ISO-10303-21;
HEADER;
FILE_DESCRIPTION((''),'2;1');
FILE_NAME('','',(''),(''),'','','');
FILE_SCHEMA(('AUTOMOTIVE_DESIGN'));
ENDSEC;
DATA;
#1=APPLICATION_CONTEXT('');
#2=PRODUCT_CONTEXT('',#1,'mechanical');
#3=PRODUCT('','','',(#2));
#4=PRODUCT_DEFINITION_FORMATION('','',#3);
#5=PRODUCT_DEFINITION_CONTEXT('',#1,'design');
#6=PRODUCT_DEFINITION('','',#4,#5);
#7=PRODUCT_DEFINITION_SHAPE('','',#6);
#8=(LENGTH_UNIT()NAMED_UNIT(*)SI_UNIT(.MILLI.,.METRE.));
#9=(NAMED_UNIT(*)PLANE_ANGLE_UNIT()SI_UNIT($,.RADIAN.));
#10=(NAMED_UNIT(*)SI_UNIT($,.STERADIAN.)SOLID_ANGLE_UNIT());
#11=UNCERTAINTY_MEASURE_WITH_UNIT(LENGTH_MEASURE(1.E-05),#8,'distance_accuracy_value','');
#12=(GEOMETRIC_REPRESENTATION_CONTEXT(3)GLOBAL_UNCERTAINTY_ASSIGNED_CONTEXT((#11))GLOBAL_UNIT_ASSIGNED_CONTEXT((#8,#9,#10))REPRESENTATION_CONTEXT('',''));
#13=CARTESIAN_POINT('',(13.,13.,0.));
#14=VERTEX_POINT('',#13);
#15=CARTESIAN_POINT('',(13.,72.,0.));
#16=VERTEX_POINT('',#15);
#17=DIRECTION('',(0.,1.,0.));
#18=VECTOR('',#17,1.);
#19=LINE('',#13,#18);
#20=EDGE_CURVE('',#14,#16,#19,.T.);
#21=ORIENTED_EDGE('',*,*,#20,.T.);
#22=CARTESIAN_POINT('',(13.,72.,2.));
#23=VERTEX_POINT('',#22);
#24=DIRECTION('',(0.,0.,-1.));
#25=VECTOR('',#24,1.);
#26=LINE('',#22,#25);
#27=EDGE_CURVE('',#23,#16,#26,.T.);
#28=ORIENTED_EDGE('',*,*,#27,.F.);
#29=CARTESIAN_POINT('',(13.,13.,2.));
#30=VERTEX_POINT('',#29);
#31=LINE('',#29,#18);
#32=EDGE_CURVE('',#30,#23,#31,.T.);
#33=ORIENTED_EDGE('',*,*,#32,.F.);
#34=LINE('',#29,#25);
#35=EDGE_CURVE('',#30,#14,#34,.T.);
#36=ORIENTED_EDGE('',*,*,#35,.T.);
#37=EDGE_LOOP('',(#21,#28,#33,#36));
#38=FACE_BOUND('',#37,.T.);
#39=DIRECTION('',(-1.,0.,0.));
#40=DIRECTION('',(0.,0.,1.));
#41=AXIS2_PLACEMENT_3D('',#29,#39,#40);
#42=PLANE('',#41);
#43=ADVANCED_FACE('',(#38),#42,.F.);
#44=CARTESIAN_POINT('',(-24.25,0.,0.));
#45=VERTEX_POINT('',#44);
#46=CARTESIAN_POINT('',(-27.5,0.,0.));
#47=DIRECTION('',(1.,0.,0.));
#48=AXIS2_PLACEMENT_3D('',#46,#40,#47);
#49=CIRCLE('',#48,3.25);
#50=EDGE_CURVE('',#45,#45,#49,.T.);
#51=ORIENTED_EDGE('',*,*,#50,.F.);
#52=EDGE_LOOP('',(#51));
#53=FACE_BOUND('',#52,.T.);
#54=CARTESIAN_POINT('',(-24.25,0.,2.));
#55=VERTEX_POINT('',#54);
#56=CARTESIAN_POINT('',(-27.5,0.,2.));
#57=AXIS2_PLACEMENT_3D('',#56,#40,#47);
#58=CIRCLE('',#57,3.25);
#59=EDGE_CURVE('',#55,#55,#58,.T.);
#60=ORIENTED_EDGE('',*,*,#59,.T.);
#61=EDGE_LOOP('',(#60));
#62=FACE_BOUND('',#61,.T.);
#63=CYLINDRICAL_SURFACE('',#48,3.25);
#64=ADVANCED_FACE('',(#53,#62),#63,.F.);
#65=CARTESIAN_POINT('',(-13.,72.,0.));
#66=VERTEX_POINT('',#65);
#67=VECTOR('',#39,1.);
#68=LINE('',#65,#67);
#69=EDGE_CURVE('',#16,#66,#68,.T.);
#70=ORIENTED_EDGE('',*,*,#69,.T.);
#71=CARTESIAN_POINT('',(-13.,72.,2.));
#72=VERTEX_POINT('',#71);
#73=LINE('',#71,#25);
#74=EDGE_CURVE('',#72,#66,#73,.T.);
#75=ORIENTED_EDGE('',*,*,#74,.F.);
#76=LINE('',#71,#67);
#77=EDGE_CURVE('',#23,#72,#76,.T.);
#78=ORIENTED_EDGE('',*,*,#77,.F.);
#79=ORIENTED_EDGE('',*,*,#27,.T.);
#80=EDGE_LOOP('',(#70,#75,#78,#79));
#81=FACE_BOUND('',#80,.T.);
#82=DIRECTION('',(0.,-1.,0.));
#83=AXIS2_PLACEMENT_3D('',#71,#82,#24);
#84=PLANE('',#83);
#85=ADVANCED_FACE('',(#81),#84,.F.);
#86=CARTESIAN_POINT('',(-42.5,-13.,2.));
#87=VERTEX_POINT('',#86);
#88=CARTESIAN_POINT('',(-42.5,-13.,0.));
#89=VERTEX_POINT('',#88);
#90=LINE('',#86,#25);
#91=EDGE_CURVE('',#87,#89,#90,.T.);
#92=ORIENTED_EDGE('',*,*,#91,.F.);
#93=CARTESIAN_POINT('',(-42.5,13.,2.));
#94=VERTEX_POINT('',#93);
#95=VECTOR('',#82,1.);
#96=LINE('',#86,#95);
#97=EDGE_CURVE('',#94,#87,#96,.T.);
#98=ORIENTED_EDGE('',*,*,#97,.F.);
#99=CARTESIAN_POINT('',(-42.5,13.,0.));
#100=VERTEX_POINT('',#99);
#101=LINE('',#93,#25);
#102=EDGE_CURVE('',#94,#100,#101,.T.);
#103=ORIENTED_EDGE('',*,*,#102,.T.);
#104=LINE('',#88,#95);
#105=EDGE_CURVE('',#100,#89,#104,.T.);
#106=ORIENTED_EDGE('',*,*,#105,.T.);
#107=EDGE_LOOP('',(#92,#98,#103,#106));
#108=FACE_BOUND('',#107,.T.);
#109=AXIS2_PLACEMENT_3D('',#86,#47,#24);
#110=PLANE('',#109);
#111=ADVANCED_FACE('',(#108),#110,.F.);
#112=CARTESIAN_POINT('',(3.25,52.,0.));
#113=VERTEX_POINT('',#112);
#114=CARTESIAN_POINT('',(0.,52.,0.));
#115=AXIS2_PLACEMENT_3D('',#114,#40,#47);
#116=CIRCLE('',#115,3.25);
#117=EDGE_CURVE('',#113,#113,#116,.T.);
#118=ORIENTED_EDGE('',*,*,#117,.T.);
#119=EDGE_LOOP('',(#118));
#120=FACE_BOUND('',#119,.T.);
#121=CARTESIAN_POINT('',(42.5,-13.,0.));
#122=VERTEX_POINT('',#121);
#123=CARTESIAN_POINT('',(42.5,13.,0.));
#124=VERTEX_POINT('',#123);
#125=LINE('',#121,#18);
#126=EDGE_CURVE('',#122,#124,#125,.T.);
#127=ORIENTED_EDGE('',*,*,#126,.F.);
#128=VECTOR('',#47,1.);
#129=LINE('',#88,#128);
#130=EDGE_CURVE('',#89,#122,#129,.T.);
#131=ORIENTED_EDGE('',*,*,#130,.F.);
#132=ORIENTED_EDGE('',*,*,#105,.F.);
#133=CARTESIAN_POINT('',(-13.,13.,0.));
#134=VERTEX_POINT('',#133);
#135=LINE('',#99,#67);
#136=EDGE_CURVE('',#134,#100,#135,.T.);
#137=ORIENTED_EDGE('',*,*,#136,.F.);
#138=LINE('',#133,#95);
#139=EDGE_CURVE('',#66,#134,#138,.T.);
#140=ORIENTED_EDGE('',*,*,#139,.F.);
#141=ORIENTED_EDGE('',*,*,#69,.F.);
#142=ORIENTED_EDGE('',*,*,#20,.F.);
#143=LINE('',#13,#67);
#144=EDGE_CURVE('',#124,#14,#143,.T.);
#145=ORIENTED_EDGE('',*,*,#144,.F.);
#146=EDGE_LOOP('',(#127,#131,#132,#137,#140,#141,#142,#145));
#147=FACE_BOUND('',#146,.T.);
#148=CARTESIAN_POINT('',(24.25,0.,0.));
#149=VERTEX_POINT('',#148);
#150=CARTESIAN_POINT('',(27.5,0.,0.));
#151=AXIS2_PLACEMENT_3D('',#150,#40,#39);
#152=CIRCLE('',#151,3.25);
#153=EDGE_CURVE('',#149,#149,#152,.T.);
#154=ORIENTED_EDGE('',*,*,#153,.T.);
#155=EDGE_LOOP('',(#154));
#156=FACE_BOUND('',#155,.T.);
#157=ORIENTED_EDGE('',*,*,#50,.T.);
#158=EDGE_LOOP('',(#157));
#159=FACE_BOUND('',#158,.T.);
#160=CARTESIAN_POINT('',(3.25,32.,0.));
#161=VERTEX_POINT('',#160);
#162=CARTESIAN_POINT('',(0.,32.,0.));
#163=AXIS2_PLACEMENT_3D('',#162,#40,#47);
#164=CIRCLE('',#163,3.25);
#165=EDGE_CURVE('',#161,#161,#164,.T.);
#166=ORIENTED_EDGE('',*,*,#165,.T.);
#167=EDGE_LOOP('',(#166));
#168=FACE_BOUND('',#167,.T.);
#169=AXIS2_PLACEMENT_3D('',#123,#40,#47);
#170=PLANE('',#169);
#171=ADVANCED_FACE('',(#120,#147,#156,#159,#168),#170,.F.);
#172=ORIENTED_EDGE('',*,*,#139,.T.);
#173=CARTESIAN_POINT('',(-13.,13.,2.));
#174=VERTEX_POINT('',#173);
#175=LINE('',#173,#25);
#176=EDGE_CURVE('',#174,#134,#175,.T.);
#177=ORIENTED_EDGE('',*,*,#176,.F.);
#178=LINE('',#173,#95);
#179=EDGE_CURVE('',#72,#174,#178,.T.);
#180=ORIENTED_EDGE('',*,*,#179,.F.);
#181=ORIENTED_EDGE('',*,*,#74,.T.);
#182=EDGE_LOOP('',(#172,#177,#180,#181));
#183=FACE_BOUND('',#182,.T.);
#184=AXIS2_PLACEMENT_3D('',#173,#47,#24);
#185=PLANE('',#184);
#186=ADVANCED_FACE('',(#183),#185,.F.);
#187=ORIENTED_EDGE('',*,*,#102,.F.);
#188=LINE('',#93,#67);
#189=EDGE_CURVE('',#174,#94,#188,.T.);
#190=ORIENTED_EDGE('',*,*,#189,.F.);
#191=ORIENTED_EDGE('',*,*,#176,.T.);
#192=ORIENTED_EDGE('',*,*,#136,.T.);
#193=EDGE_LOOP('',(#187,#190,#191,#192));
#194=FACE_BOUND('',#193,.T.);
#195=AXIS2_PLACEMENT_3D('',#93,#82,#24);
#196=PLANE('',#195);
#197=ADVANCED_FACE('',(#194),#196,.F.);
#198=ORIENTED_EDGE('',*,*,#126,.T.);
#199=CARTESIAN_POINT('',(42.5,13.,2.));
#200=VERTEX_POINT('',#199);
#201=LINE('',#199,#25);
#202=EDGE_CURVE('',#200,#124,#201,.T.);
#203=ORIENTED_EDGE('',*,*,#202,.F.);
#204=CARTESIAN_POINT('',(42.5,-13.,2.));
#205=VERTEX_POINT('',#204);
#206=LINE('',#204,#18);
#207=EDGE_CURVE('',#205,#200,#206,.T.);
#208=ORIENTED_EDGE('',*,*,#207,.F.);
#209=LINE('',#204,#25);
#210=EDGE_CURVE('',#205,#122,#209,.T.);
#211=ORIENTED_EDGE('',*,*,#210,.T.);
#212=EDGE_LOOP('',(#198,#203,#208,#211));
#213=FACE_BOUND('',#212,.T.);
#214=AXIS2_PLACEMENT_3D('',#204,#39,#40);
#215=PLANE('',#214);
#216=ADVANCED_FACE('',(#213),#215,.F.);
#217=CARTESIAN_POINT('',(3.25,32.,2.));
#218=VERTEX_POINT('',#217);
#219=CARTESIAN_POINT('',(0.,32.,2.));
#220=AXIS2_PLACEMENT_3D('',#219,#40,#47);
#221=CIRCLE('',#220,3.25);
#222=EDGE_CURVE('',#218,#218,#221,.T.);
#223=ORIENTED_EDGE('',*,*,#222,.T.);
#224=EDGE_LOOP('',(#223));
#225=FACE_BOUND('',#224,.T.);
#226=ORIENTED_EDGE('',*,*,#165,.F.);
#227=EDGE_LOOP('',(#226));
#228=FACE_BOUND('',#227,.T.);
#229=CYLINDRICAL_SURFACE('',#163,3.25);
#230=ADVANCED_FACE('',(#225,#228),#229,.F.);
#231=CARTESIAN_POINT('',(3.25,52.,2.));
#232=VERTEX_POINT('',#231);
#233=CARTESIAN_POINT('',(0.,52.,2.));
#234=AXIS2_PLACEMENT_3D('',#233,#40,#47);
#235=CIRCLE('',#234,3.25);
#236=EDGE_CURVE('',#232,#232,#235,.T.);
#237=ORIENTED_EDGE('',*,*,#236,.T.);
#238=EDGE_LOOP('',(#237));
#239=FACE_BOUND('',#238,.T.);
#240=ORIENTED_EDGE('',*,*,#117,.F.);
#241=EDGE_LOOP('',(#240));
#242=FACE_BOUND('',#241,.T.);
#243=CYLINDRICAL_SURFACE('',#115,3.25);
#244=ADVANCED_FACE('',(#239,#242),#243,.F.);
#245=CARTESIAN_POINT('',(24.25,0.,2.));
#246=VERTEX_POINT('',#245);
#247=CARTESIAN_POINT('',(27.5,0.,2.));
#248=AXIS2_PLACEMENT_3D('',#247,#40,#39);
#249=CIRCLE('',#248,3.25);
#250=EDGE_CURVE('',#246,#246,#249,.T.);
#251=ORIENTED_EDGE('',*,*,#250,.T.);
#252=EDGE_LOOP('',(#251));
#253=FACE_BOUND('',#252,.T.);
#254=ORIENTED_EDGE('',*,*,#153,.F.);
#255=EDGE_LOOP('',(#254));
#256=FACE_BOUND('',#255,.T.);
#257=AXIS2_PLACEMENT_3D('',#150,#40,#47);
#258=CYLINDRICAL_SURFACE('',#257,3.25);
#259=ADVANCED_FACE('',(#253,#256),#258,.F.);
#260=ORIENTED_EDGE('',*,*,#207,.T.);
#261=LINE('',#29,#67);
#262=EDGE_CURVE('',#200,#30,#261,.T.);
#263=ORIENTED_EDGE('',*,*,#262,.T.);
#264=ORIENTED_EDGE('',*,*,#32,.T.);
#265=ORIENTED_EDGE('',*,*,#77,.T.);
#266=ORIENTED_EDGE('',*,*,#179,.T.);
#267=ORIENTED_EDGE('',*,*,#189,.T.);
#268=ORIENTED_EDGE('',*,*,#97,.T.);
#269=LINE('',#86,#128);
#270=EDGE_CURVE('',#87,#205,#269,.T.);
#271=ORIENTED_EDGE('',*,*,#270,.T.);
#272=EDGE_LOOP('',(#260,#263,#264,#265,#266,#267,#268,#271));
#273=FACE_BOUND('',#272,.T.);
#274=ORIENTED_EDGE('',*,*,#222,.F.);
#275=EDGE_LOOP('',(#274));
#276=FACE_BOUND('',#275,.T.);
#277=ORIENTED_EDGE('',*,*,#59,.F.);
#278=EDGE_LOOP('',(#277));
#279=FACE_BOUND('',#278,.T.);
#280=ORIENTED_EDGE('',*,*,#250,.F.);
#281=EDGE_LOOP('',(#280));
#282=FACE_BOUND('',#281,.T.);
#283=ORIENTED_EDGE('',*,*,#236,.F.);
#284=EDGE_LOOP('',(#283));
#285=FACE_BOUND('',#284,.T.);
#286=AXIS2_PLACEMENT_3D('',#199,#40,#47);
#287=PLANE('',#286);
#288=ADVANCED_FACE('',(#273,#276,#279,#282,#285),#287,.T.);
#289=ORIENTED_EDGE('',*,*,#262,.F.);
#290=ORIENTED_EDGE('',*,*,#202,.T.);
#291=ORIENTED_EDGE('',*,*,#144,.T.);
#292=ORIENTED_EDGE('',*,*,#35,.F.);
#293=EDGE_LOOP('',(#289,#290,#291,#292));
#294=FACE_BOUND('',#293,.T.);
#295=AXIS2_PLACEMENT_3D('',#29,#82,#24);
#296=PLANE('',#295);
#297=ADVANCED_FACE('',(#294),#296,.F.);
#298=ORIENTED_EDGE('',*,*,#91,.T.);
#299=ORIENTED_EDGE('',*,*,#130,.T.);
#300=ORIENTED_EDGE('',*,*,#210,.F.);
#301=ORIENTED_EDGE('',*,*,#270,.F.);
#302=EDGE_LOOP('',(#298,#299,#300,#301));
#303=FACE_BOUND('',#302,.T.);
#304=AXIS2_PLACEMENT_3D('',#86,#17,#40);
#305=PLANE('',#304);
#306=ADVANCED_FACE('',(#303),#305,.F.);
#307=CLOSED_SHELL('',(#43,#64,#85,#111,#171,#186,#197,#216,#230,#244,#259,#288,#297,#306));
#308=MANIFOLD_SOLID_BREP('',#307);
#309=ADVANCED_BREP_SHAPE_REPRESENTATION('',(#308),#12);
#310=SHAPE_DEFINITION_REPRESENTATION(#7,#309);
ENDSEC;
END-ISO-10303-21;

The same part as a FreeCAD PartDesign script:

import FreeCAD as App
import Part
import Sketcher
Q = App.Units.Quantity


def add_polygon(sketch, points):
    """Adds a closed chain of lines whose ends are joined by coincident constraints."""
    first, n = sketch.GeometryCount, len(points)
    for a, b in zip(points, points[1:] + points[:1]):
        sketch.addGeometry(Part.LineSegment(App.Vector(*a, 0), App.Vector(*b, 0)), False)
    for i in range(n):
        sketch.addConstraint(Sketcher.Constraint("Coincident", first + i, 2, first + (i + 1) % n, 1))

doc = App.newDocument("Part")
body = doc.addObject("PartDesign::Body", "Body")

# Sketch on XY plane
sketch1 = body.newObject("Sketcher::SketchObject", "Sketch")
sketch1.AttachmentSupport = (doc.getObject("XY_Plane"), [""])
sketch1.MapMode = "FlatFace"
add_polygon(sketch1, [(-42.5, -13), (42.5, -13), (42.5, 13), (13, 13), (13, 72), (-13, 72), (-13, 13), (-42.5, 13)])  # lines 0-7
sketch1.addConstraint([
    Sketcher.Constraint("Horizontal", 0),
    Sketcher.Constraint("Vertical", 1),
    Sketcher.Constraint("Horizontal", 2),
    Sketcher.Constraint("Vertical", 3),
    Sketcher.Constraint("Horizontal", 4),
    Sketcher.Constraint("Vertical", 5),
    Sketcher.Constraint("Horizontal", 6),
    Sketcher.Constraint("Vertical", 7),
    Sketcher.Constraint("Symmetric", 0, 2, 6, 2, -1, 1),
    Sketcher.Constraint("Symmetric", 2, 2, 5, 2, -2),
    Sketcher.Constraint("Equal", 4, 1),
    Sketcher.Constraint("DistanceX", 0, 1, 0, 2, Q("85 mm")),
    Sketcher.Constraint("DistanceX", 4, 2, 4, 1, Q("26 mm")),
    Sketcher.Constraint("DistanceY", 3, 1, 3, 2, Q("59 mm")),
])
pad1 = body.newObject("PartDesign::Pad", "Pad")
pad1.Profile = sketch1
pad1.Length = 2

# Sketch on XY plane
sketch2 = body.newObject("Sketcher::SketchObject", "Sketch001")
sketch2.AttachmentSupport = (doc.getObject("XY_Plane"), [""])
sketch2.MapMode = "FlatFace"
sketch2.AttachmentOffset = App.Placement(App.Vector(0, 0, 2), App.Rotation())
sketch2.addGeometry([
    Part.Circle(App.Vector(0, 52, 0), App.Vector(0, 0, 1), 3.25),
    Part.Circle(App.Vector(0, 32, 0), App.Vector(0, 0, 1), 3.25),
    Part.Circle(App.Vector(-27.5, 0, 0), App.Vector(0, 0, 1), 3.25),
    Part.Circle(App.Vector(27.5, 0, 0), App.Vector(0, 0, 1), 3.25),
], False)
sketch2.addConstraint([
    Sketcher.Constraint("Equal", 0, 1),
    Sketcher.Constraint("Equal", 1, 2),
    Sketcher.Constraint("Equal", 2, 3),
    Sketcher.Constraint("Symmetric", 2, 3, 3, 3, -1, 1),
    Sketcher.Constraint("PointOnObject", 0, 3, -2),
    Sketcher.Constraint("PointOnObject", 1, 3, -2),
    Sketcher.Constraint("PointOnObject", 2, 3, -1),
    Sketcher.Constraint("Diameter", 0, Q("6.5 mm")),
    Sketcher.Constraint("DistanceY", -1, 1, 0, 3, Q("52 mm")),
    Sketcher.Constraint("DistanceY", -1, 1, 1, 3, Q("32 mm")),
    Sketcher.Constraint("DistanceX", 2, 3, 3, 3, Q("55 mm")),
])
pocket1 = body.newObject("PartDesign::Pocket", "Pocket")
pocket1.Profile = sketch2
pocket1.Type = "ThroughAll"

doc.recompute()
